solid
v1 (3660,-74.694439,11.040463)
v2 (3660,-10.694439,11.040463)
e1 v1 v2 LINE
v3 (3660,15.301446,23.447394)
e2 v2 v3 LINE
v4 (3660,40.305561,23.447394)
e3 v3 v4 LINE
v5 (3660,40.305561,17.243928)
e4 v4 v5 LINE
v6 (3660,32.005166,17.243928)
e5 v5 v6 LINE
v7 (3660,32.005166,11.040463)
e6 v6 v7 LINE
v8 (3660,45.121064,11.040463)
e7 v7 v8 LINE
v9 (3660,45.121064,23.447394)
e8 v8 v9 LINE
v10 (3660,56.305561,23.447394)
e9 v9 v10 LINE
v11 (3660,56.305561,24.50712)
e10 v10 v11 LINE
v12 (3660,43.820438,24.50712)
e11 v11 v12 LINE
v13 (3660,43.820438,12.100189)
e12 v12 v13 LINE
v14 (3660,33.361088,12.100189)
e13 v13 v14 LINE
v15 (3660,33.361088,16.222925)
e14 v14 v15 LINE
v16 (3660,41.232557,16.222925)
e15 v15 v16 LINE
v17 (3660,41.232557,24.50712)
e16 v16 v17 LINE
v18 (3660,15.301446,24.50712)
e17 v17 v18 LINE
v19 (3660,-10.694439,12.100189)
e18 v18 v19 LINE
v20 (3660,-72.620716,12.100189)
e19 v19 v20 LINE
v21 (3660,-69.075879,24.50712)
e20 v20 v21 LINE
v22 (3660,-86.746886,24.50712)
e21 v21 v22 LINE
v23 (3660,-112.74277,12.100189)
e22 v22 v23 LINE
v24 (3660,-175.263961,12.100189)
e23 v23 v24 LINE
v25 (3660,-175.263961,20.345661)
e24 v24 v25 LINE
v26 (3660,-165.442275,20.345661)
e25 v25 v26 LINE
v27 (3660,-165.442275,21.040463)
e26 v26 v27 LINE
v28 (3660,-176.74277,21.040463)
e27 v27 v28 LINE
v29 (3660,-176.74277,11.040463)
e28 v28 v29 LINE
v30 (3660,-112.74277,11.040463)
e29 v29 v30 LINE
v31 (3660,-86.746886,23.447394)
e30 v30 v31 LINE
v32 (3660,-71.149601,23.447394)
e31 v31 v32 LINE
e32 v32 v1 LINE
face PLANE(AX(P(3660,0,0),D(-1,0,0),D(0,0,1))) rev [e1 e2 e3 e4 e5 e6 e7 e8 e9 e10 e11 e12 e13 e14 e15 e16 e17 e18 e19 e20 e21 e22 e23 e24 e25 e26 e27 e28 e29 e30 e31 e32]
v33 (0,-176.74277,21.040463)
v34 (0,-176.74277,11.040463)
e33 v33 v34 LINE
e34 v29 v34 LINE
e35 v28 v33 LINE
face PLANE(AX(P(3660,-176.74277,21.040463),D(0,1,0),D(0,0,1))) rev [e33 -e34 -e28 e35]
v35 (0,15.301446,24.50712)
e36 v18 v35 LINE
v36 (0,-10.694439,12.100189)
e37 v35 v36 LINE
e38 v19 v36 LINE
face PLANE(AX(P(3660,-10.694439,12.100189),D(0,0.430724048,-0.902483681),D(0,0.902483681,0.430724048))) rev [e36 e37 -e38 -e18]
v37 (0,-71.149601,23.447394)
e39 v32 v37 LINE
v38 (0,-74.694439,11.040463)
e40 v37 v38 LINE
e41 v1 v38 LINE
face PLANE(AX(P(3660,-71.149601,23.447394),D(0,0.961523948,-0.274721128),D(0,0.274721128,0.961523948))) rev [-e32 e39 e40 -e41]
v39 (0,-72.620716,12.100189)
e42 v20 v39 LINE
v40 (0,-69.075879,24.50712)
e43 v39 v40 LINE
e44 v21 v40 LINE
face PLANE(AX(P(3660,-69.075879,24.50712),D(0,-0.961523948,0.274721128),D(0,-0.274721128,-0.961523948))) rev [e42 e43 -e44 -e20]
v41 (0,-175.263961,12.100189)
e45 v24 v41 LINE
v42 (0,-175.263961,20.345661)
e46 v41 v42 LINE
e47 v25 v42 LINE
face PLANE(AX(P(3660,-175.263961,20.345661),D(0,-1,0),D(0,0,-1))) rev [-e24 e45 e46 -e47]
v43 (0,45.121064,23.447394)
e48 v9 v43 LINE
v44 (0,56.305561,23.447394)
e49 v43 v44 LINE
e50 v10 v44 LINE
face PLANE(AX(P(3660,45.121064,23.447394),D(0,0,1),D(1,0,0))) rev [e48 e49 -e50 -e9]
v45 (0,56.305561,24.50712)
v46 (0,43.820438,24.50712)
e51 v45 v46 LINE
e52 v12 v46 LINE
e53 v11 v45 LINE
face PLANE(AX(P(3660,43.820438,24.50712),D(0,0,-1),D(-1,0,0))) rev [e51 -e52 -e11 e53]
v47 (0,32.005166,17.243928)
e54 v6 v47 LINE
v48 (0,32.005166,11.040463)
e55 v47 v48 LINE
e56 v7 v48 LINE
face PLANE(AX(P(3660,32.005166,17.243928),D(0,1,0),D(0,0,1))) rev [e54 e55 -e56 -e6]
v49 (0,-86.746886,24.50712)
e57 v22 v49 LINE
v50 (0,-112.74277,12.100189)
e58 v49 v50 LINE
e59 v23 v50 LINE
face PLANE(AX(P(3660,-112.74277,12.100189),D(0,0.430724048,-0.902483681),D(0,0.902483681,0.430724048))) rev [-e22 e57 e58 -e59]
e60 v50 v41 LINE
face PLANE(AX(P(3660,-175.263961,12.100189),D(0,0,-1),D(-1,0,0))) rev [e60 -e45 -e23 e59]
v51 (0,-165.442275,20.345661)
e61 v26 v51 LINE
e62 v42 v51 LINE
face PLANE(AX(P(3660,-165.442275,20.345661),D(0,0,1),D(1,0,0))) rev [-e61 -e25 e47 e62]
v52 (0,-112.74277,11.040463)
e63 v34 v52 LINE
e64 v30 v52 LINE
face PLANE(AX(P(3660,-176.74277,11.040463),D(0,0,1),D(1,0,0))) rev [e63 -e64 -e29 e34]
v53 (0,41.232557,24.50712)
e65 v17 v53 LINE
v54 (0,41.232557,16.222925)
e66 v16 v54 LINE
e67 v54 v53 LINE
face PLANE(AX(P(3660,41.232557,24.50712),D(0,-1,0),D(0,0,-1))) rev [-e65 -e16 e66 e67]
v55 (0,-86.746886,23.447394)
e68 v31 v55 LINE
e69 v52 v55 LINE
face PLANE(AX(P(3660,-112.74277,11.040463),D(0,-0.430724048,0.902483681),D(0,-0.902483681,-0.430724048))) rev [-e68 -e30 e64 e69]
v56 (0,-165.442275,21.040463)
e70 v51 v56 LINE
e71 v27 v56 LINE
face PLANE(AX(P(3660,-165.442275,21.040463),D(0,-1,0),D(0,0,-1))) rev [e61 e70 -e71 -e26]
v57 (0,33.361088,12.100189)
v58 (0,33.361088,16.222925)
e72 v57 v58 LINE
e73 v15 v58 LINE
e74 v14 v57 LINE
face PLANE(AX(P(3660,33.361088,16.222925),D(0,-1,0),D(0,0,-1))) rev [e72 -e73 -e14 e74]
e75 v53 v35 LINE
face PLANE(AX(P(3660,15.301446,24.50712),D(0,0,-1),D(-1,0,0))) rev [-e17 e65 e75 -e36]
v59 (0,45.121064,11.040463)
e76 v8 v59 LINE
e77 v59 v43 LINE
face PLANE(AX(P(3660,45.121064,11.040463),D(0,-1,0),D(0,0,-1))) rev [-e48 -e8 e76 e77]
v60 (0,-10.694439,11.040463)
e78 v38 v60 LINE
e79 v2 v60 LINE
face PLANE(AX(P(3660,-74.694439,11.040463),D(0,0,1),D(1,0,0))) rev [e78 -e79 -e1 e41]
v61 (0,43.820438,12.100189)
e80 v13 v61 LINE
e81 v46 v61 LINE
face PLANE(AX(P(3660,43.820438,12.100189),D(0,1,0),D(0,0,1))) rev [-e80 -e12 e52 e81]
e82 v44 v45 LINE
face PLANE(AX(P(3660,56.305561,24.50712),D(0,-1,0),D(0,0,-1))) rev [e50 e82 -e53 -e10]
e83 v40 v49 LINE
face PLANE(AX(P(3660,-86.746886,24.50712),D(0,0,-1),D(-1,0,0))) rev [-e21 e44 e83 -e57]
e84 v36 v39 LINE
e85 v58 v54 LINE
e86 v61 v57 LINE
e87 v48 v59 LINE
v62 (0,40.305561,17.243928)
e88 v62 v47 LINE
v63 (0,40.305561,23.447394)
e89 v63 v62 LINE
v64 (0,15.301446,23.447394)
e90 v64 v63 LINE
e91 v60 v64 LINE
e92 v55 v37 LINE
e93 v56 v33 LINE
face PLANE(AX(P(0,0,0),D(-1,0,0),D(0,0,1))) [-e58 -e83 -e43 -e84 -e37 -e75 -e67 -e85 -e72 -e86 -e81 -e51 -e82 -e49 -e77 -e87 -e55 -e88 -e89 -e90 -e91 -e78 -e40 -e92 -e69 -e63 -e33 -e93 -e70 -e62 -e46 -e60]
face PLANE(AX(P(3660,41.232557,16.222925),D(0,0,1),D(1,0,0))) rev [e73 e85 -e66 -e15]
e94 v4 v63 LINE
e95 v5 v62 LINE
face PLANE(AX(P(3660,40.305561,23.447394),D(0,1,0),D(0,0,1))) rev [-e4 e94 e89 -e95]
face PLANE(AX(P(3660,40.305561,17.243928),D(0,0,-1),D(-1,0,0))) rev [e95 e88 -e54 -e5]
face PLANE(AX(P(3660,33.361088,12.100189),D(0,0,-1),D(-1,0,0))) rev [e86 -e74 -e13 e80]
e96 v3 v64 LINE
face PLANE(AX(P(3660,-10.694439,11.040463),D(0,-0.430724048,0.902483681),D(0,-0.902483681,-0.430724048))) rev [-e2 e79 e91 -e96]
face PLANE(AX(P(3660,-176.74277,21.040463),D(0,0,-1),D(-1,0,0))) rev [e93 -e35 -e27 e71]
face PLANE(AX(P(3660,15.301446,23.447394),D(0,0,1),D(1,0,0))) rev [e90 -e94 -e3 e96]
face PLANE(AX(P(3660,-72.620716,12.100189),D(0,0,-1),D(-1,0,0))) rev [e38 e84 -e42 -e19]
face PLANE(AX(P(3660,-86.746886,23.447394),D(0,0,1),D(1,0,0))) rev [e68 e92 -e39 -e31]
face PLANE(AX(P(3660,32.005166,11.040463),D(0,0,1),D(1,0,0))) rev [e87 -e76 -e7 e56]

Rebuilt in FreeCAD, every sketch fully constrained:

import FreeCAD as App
import Part
import Sketcher

V = App.Vector
Q = App.Units.Quantity


def add_polygon(sketch, points):
    """Adds a closed chain of lines whose ends are joined by coincident constraints."""
    first, n = sketch.GeometryCount, len(points)
    for a, b in zip(points, points[1:] + points[:1]):
        sketch.addGeometry(Part.LineSegment(App.Vector(*a, 0), App.Vector(*b, 0)), False)
    for i in range(n):
        sketch.addConstraint(Sketcher.Constraint("Coincident", first + i, 2, first + (i + 1) % n, 1))

doc = App.newDocument("Part")
body = doc.addObject("PartDesign::Body", "Body")

sketch1 = doc.addObject("Sketcher::SketchObject", "Sketch")
body.addObject(sketch1)
sketch1.AttachmentSupport = (doc.YZ_Plane, [""])
sketch1.MapMode = "FlatFace"
add_polygon(sketch1, [(-176.7, 21), (-176.7, 11), (-112.7, 11), (-86.7, 23.4), (-71.1, 23.4), (-74.7, 11), (-10.7, 11), (15.3, 23.4), (40.3, 23.4), (40.3, 17.2), (32, 17.2), (32, 11), (45.1, 11), (45.1, 23.4), (56.3, 23.4), (56.3, 24.5), (43.8, 24.5), (43.8, 12.1), (33.4, 12.1), (33.4, 16.2), (41.2, 16.2), (41.2, 24.5), (15.3, 24.5), (-10.7, 12.1), (-72.6, 12.1), (-69.1, 24.5), (-86.7, 24.5), (-112.7, 12.1), (-175.3, 12.1), (-175.3, 20.3), (-165.4, 20.3), (-165.4, 21)])
sketch1.addConstraint([
    Sketcher.Constraint("Vertical", 0),
    Sketcher.Constraint("Horizontal", 1),
    Sketcher.Constraint("Horizontal", 3),
    Sketcher.Constraint("Horizontal", 5),
    Sketcher.Constraint("Horizontal", 7),
    Sketcher.Constraint("Vertical", 8),
    Sketcher.Constraint("Horizontal", 9),
    Sketcher.Constraint("Vertical", 10),
    Sketcher.Constraint("Horizontal", 11),
    Sketcher.Constraint("Vertical", 12),
    Sketcher.Constraint("Horizontal", 13),
    Sketcher.Constraint("Vertical", 14),
    Sketcher.Constraint("Horizontal", 15),
    Sketcher.Constraint("Vertical", 16),
    Sketcher.Constraint("Horizontal", 17),
    Sketcher.Constraint("Vertical", 18),
    Sketcher.Constraint("Horizontal", 19),
    Sketcher.Constraint("Vertical", 20),
    Sketcher.Constraint("Horizontal", 21),
    Sketcher.Constraint("Horizontal", 23),
    Sketcher.Constraint("Horizontal", 25),
    Sketcher.Constraint("Horizontal", 27),
    Sketcher.Constraint("Vertical", 28),
    Sketcher.Constraint("Horizontal", 29),
    Sketcher.Constraint("Vertical", 30),
    Sketcher.Constraint("Horizontal", 31),
    Sketcher.Constraint("Parallel", 2, 6),
    Sketcher.Constraint("Parallel", 6, 22),
    Sketcher.Constraint("Parallel", 4, 24),
    Sketcher.Constraint("Parallel", 22, 26),
    Sketcher.Constraint("Horizontal", 1, 2, 4, 2),
    Sketcher.Constraint("Horizontal", 3, 2, 6, 2),
    Sketcher.Constraint("Horizontal", 5, 2, 10, 2),
    Sketcher.Constraint("Horizontal", 7, 2, 12, 2),
    Sketcher.Constraint("Horizontal", 15, 2, 20, 2),
    Sketcher.Constraint("Horizontal", 17, 2, 22, 2),
    Sketcher.Constraint("Horizontal", 21, 2, 24, 2),
    Sketcher.Constraint("Horizontal", 23, 2, 26, 2),
    Sketcher.Constraint("Vertical", 6, 2, 21, 2),
    Sketcher.Constraint("Vertical", 5, 2, 22, 2),
    Sketcher.Constraint("Vertical", 2, 2, 25, 2),
    Sketcher.Constraint("Equal", 1, 5),
    Sketcher.Constraint("Equal", 8, 10),
    Sketcher.Constraint("DistanceX", 1, 1, 1, 2, Q("64 mm")),
    Sketcher.Constraint("DistanceY", 0, 2, 0, 1, Q("10 mm")),
    Sketcher.Constraint("DistanceX", 5, 2, 7, 2, Q("51 mm")),
    Sketcher.Constraint("DistanceX", 7, 2, 13, 2, Q("16 mm")),
    Sketcher.Constraint("DistanceX", 11, 1, 11, 2, Q("13.115898 mm")),
    Sketcher.Constraint("DistanceY", 30, 1, 30, 2, Q("0.694802 mm")),
    Sketcher.Constraint("DistanceX", 17, 2, 17, 1, Q("10.45935 mm")),
    Sketcher.Constraint("DistanceX", 19, 1, 19, 2, Q("7.87147 mm")),
    Sketcher.Constraint("DistanceX", 21, 2, 21, 1, Q("25.931112 mm")),
    Sketcher.Constraint("DistanceX", 27, 2, 27, 1, Q("62.521191 mm")),
    Sketcher.Constraint("DistanceY", 12, 1, 12, 2, Q("12.406931 mm")),
    Sketcher.Constraint("DistanceX", 3, 2, -1, 1, Q("71.149601 mm")),
    Sketcher.Constraint("DistanceX", 3, 1, 3, 2, Q("15.597284 mm")),
    Sketcher.Constraint("DistanceX", 7, 1, 7, 2, Q("25.004116 mm")),
    Sketcher.Constraint("DistanceX", 9, 2, 9, 1, Q("8.300395 mm")),
    Sketcher.Constraint("DistanceX", 23, 2, 23, 1, Q("61.926278 mm")),
    Sketcher.Constraint("DistanceX", 29, 1, 29, 2, Q("9.821686 mm")),
    Sketcher.Constraint("DistanceY", 14, 1, 14, 2, Q("1.059726 mm")),
    Sketcher.Constraint("DistanceY", 18, 1, 18, 2, Q("4.122736 mm")),
    Sketcher.Constraint("DistanceX", 4, 2, -1, 1, Q("74.694439 mm")),
    Sketcher.Constraint("DistanceY", -1, 1, 8, 2, Q("17.243928 mm")),
])
pad1 = doc.addObject("PartDesign::Pad", "Pad")
body.addObject(pad1)
pad1.Profile = sketch1
pad1.Length = 3660

doc.recompute()
